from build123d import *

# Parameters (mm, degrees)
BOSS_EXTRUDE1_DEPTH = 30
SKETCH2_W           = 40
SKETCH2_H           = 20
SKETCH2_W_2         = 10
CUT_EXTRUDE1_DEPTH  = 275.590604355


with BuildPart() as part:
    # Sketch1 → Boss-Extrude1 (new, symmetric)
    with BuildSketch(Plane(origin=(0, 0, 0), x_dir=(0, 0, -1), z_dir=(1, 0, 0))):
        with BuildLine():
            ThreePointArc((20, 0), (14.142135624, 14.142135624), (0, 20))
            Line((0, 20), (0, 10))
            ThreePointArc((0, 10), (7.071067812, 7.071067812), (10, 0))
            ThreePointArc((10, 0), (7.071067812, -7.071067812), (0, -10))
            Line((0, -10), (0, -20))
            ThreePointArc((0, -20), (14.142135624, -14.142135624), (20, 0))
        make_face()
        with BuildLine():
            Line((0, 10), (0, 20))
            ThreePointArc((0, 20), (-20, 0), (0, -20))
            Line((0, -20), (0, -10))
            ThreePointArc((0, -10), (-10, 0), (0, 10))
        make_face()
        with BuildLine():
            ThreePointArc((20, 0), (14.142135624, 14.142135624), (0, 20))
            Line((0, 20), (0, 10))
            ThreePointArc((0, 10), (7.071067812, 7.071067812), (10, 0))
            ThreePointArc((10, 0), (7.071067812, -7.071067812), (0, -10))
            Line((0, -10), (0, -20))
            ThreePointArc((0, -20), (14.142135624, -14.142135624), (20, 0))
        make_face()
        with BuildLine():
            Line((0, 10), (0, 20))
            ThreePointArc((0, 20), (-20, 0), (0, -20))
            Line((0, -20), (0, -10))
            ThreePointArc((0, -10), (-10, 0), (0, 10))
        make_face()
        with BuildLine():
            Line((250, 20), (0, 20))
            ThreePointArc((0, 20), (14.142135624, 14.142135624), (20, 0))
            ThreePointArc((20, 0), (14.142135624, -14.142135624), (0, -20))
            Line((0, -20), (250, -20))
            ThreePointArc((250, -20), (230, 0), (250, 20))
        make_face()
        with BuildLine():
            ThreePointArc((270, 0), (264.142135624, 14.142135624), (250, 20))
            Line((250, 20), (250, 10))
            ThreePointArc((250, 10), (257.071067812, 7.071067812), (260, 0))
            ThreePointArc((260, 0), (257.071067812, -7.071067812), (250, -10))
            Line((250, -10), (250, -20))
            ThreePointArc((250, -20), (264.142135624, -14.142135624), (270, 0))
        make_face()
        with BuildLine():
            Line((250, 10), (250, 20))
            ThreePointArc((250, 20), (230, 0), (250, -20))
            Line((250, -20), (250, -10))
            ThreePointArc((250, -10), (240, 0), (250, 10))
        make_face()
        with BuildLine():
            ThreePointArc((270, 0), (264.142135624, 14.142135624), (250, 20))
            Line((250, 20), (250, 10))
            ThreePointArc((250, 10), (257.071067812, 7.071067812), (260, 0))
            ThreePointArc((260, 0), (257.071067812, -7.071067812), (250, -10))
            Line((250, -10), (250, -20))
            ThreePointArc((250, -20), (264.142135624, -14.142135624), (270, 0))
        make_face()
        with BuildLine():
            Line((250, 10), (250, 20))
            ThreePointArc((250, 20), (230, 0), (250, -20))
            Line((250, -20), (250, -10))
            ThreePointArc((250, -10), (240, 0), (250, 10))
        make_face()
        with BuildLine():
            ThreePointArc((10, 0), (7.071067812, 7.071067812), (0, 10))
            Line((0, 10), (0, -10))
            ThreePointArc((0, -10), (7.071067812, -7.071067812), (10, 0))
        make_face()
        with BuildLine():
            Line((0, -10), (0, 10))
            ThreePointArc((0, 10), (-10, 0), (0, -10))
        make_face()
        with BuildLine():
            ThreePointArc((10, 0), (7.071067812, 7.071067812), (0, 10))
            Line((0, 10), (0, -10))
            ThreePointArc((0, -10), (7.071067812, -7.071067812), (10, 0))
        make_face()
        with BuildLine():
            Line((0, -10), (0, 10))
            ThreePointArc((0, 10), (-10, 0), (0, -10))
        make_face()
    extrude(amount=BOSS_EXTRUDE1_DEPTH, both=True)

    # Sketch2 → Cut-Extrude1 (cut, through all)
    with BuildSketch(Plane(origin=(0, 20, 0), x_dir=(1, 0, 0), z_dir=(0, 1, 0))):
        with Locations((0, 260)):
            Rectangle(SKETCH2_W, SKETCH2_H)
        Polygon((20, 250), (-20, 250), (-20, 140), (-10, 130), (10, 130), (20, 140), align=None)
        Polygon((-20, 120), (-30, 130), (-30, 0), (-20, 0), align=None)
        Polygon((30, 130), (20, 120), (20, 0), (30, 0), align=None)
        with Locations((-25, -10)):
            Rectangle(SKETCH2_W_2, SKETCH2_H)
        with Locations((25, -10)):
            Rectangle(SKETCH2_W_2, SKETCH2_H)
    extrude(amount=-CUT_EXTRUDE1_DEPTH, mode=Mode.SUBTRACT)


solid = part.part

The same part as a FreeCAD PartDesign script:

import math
import FreeCAD as App
import Part
import Sketcher
from FreeCAD import Vector


def add_polygon(sketch, points):
    """Adds a closed chain of lines whose ends are joined by coincident constraints."""
    first, n = sketch.GeometryCount, len(points)
    for a, b in zip(points, points[1:] + points[:1]):
        sketch.addGeometry(Part.LineSegment(App.Vector(*a, 0), App.Vector(*b, 0)), False)
    for i in range(n):
        sketch.addConstraint(Sketcher.Constraint("Coincident", first + i, 2, first + (i + 1) % n, 1))

doc = App.newDocument("Part")
body = doc.addObject("PartDesign::Body", "Body")

# Sketch on YZ plane
sketch1 = body.newObject("Sketcher::SketchObject", "Sketch")
sketch1.AttachmentSupport = (doc.getObject("YZ_Plane"), [""])
sketch1.MapMode = "FlatFace"
sketch1.addGeometry(Part.LineSegment(Vector(-20, 0, 0), Vector(-20, -250, 0)), False)
sketch1.addGeometry(Part.ArcOfCircle(Part.Circle(Vector(0, -250, 0), Vector(0, 0, 1), 20), math.radians(180), math.radians(270)), False)
sketch1.addGeometry(Part.ArcOfCircle(Part.Circle(Vector(0, -250, 0), Vector(0, 0, 1), 20), math.radians(-90), math.radians(0)), False)
sketch1.addGeometry(Part.LineSegment(Vector(20, -250, 0), Vector(20, 0, 0)), False)
sketch1.addGeometry(Part.ArcOfCircle(Part.Circle(Vector(0, 0, 0), Vector(0, 0, 1), 20), math.radians(0), math.radians(180)), False)
sketch1.addGeometry(Part.ArcOfCircle(Part.Circle(Vector(0, -250, 0), Vector(0, 0, 1), 10), math.radians(0), math.radians(180)), False)
sketch1.addGeometry(Part.ArcOfCircle(Part.Circle(Vector(0, -250, 0), Vector(0, 0, 1), 10), math.radians(-90), math.radians(0)), False)
sketch1.addGeometry(Part.ArcOfCircle(Part.Circle(Vector(0, -250, 0), Vector(0, 0, 1), 10), math.radians(180), math.radians(270)), False)
sketch1.addConstraint(Sketcher.Constraint("Tangent", 0, 2, 1, 1))
sketch1.addConstraint(Sketcher.Constraint("Tangent", 1, 2, 2, 1))
sketch1.addConstraint(Sketcher.Constraint("Tangent", 2, 2, 3, 1))
sketch1.addConstraint(Sketcher.Constraint("Tangent", 3, 2, 4, 1))
sketch1.addConstraint(Sketcher.Constraint("Tangent", 4, 2, 0, 1))
sketch1.addConstraint(Sketcher.Constraint("Tangent", 5, 1, 6, 2))
sketch1.addConstraint(Sketcher.Constraint("Tangent", 6, 1, 7, 2))
sketch1.addConstraint(Sketcher.Constraint("Tangent", 7, 1, 5, 2))
sketch1.addConstraint(Sketcher.Constraint("Vertical", 0))
sketch1.addConstraint(Sketcher.Constraint("Vertical", 3))
sketch1.addConstraint(Sketcher.Constraint("Coincident", 4, 3, -1, 1))
sketch1.addConstraint(Sketcher.Constraint("Coincident", 5, 3, 1, 3))
sketch1.addConstraint(Sketcher.Constraint("Equal", 1, 2))
sketch1.addConstraint(Sketcher.Constraint("PointOnObject", 1, 2, -2))
sketch1.addConstraint(Sketcher.Constraint("PointOnObject", 6, 1, -2))
sketch1.addConstraint(Sketcher.Constraint("Horizontal", 2, 2, 5, 1))
sketch1.addConstraint(Sketcher.Constraint("Horizontal", 5, 1, 7, 1))
sketch1.addConstraint(Sketcher.Constraint("Radius", 1, 20.0))
sketch1.addConstraint(Sketcher.Constraint("Radius", 5, 10.0))
sketch1.addConstraint(Sketcher.Constraint("DistanceY", 0, 2, 0, 1, 250.0))
pad1 = body.newObject("PartDesign::Pad", "Pad")
pad1.Profile = sketch1
pad1.Length = 60
pad1.Midplane = True

# Sketch on XZ plane
sketch2 = body.newObject("Sketcher::SketchObject", "Sketch001")
sketch2.AttachmentSupport = (doc.getObject("XZ_Plane"), [""])
sketch2.MapMode = "FlatFace"
sketch2.AttachmentOffset = App.Placement(Vector(0, 0, -20), App.Rotation())
add_polygon(sketch2, [(-20, -270), (-20, -140), (-10, -130), (10, -130), (20, -140), (20, -270)])  # lines 0-5
add_polygon(sketch2, [(-20, -120), (-30, -130), (-30, 20), (-20, 20)])  # lines 6-9
add_polygon(sketch2, [(30, -130), (20, -120), (20, 20), (30, 20)])  # lines 10-13
sketch2.addConstraint(Sketcher.Constraint("Vertical", 0))
sketch2.addConstraint(Sketcher.Constraint("Horizontal", 2))
sketch2.addConstraint(Sketcher.Constraint("Vertical", 4))
sketch2.addConstraint(Sketcher.Constraint("Horizontal", 5))
sketch2.addConstraint(Sketcher.Constraint("Vertical", 7))
sketch2.addConstraint(Sketcher.Constraint("Horizontal", 8))
sketch2.addConstraint(Sketcher.Constraint("Vertical", 9))
sketch2.addConstraint(Sketcher.Constraint("Vertical", 11))
sketch2.addConstraint(Sketcher.Constraint("Horizontal", 12))
sketch2.addConstraint(Sketcher.Constraint("Vertical", 13))
sketch2.addConstraint(Sketcher.Constraint("Symmetric", 0, 2, 3, 2, -2))
sketch2.addConstraint(Sketcher.Constraint("Symmetric", 9, 2, 10, 2, -2))
sketch2.addConstraint(Sketcher.Constraint("Symmetric", 7, 2, 12, 2, -2))
sketch2.addConstraint(Sketcher.Constraint("Perpendicular", 1, 3))
sketch2.addConstraint(Sketcher.Constraint("Perpendicular", 3, 6))
sketch2.addConstraint(Sketcher.Constraint("Perpendicular", 6, 10))
sketch2.addConstraint(Sketcher.Constraint("Horizontal", 2, 2, 6, 2))
sketch2.addConstraint(Sketcher.Constraint("Horizontal", 6, 2, 13, 2))
sketch2.addConstraint(Sketcher.Constraint("Vertical", 5, 2, 8, 2))
sketch2.addConstraint(Sketcher.Constraint("Equal", 3, 6))
sketch2.addConstraint(Sketcher.Constraint("DistanceX", 2, 1, 2, 2, 20.0))
sketch2.addConstraint(Sketcher.Constraint("DistanceX", 5, 2, 5, 1, 40.0))
sketch2.addConstraint(Sketcher.Constraint("DistanceY", 0, 1, 0, 2, 130.0))
sketch2.addConstraint(Sketcher.Constraint("DistanceY", 7, 1, 7, 2, 150.0))
sketch2.addConstraint(Sketcher.Constraint("DistanceY", 0, 2, -1, 1, 140.0))
pocket1 = body.newObject("PartDesign::Pocket", "Pocket")
pocket1.Profile = sketch2
pocket1.Type = "ThroughAll"
pocket1.Reversed = True

doc.recompute()
